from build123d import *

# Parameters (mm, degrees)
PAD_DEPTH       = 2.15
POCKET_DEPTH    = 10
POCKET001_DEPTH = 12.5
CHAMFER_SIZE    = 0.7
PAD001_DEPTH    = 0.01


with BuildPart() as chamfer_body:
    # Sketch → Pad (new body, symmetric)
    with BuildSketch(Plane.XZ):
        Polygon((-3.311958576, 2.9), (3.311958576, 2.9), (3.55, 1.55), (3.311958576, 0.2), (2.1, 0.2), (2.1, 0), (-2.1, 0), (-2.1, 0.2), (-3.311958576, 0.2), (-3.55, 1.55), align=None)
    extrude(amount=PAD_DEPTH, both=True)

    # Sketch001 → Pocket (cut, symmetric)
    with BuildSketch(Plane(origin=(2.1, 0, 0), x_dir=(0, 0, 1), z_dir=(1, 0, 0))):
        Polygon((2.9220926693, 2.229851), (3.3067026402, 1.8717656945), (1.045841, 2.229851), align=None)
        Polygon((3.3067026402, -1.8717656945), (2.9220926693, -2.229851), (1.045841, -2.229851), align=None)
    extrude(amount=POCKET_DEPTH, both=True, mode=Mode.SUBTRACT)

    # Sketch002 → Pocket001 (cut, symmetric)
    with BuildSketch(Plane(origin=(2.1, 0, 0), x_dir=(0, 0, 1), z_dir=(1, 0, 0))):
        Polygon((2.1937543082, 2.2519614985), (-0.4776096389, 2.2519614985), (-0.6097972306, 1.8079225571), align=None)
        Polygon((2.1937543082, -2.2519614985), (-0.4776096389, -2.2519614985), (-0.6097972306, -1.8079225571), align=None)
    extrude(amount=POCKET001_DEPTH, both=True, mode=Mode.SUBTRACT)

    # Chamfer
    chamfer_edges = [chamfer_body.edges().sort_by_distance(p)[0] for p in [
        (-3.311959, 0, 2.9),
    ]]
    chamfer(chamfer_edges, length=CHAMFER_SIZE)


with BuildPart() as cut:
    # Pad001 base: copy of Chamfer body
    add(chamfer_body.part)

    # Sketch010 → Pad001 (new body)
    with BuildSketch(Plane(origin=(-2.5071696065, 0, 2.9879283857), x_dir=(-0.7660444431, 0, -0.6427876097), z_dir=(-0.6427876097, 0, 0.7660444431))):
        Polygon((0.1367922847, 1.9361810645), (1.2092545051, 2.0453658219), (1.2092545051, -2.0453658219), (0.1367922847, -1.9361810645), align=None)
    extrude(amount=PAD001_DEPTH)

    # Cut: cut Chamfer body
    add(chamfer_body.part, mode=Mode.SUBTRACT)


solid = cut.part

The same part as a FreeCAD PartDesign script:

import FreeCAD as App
import Part
import Sketcher
from FreeCAD import Vector
Q = App.Units.Quantity


def edges_at(feature, points):
    """Names of the edges that pass closest to the given points."""
    edges = feature.Shape.Edges
    near = lambda p: min(range(len(edges)), key=lambda i: edges[i].distToShape(Part.Vertex(*p))[0])
    return sorted({f"Edge{near(p) + 1}" for p in points})


def add_polygon(sketch, points):
    """Adds a closed chain of lines whose ends are joined by coincident constraints."""
    first, n = sketch.GeometryCount, len(points)
    for a, b in zip(points, points[1:] + points[:1]):
        sketch.addGeometry(Part.LineSegment(App.Vector(*a, 0), App.Vector(*b, 0)), False)
    for i in range(n):
        sketch.addConstraint(Sketcher.Constraint("Coincident", first + i, 2, first + (i + 1) % n, 1))

doc = App.newDocument("Part")
body = doc.addObject("PartDesign::Body", "Body")

# Sketch on XZ plane
sketch1 = doc.addObject("Sketcher::SketchObject", "Sketch")
body.addObject(sketch1)
sketch1.AttachmentSupport = (doc.XZ_Plane, [""])
sketch1.MapMode = "FlatFace"
add_polygon(sketch1, [(3.311959, 2.9), (-3.311959, 2.9), (-3.55, 1.55), (-3.311959, 0.2), (-2.1, 0.2), (-2.1, 0), (2.1, 0), (2.1, 0.2), (3.311959, 0.2), (3.55, 1.55)])  # lines 0-9
sketch1.addConstraint(Sketcher.Constraint("Horizontal", 0))
sketch1.addConstraint(Sketcher.Constraint("Horizontal", 3))
sketch1.addConstraint(Sketcher.Constraint("Vertical", 4))
sketch1.addConstraint(Sketcher.Constraint("Horizontal", 5))
sketch1.addConstraint(Sketcher.Constraint("Vertical", 6))
sketch1.addConstraint(Sketcher.Constraint("Horizontal", 7))
sketch1.addConstraint(Sketcher.Constraint("Symmetric", 4, 2, 5, 2, -1, 1))
sketch1.addConstraint(Sketcher.Constraint("Symmetric", 2, 2, 7, 2, -2))
sketch1.addConstraint(Sketcher.Constraint("Symmetric", 1, 2, 8, 2, -2))
sketch1.addConstraint(Sketcher.Constraint("Parallel", 1, 8))
sketch1.addConstraint(Sketcher.Constraint("Parallel", 2, 9))
sketch1.addConstraint(Sketcher.Constraint("Vertical", 0, 2, 2, 2))
sketch1.addConstraint(Sketcher.Constraint("Angle", 1, Q("-100 deg")))
sketch1.addConstraint(Sketcher.Constraint("DistanceX", 5, 1, 5, 2, Q("4.2 mm")))
sketch1.addConstraint(Sketcher.Constraint("DistanceY", 4, 2, 4, 1, Q("0.2 mm")))
sketch1.addConstraint(Sketcher.Constraint("DistanceY", -1, 1, 0, 2, Q("2.9 mm")))
sketch1.addConstraint(Sketcher.Constraint("DistanceX", 1, 2, -1, 1, Q("3.55 mm")))
pad1 = doc.addObject("PartDesign::Pad", "Pad")
body.addObject(pad1)
pad1.Profile = sketch1
pad1.Length = 4.3
pad1.Midplane = True

# Sketch on YZ plane
sketch2 = doc.addObject("Sketcher::SketchObject", "Sketch001")
body.addObject(sketch2)
sketch2.AttachmentSupport = (doc.YZ_Plane, [""])
sketch2.MapMode = "FlatFace"
sketch2.AttachmentOffset = App.Placement(Vector(0, 0, 2.1), App.Rotation())
add_polygon(sketch2, [(-1.871766, 3.306703), (-2.229851, 2.922093), (-2.229851, 1.045841)])  # lines 0-2
add_polygon(sketch2, [(2.229851, 2.922093), (1.871766, 3.306703), (2.229851, 1.045841)])  # lines 3-5
sketch2.addConstraint(Sketcher.Constraint("Vertical", 1))
sketch2.addConstraint(Sketcher.Constraint("Vertical", 5))
sketch2.addConstraint(Sketcher.Constraint("Symmetric", 2, 2, 3, 2, -2))
sketch2.addConstraint(Sketcher.Constraint("Symmetric", 1, 2, 4, 2, -2))
sketch2.addConstraint(Sketcher.Constraint("Horizontal", 0, 2, 5, 2))
sketch2.addConstraint(Sketcher.Constraint("Angle", 2, Q("81 deg")))
sketch2.addConstraint(Sketcher.Constraint("Distance", 0, Q("0.5255 mm")))
sketch2.addConstraint(Sketcher.Constraint("DistanceY", 1, 2, 1, 1, Q("1.876252 mm")))
sketch2.addConstraint(Sketcher.Constraint("DistanceX", 0, 2, -1, 1, Q("2.229851 mm")))
sketch2.addConstraint(Sketcher.Constraint("DistanceY", -1, 1, 1, 2, Q("1.045841 mm")))
pocket1 = doc.addObject("PartDesign::Pocket", "Pocket")
body.addObject(pocket1)
pocket1.Profile = sketch2
pocket1.Length = 20
pocket1.Midplane = True

# Sketch on YZ plane
sketch3 = doc.addObject("Sketcher::SketchObject", "Sketch002")
body.addObject(sketch3)
sketch3.AttachmentSupport = (doc.YZ_Plane, [""])
sketch3.MapMode = "FlatFace"
sketch3.AttachmentOffset = App.Placement(Vector(0, 0, 2.1), App.Rotation())
add_polygon(sketch3, [(-2.251961, 2.193754), (-2.251961, -0.47761), (-1.807923, -0.609797)])  # lines 0-2
add_polygon(sketch3, [(2.251961, -0.47761), (2.251961, 2.193754), (1.807923, -0.609797)])  # lines 3-5
sketch3.addConstraint(Sketcher.Constraint("Vertical", 0))
sketch3.addConstraint(Sketcher.Constraint("Vertical", 3))
sketch3.addConstraint(Sketcher.Constraint("Symmetric", 2, 2, 3, 2, -2))
sketch3.addConstraint(Sketcher.Constraint("Symmetric", 1, 2, 4, 2, -2))
sketch3.addConstraint(Sketcher.Constraint("Horizontal", 0, 2, 5, 2))
sketch3.addConstraint(Sketcher.Constraint("Angle", 2, Q("99 deg")))
sketch3.addConstraint(Sketcher.Constraint("Distance", 2, Q("2.838498 mm")))
sketch3.addConstraint(Sketcher.Constraint("DistanceY", 0, 2, 0, 1, Q("2.671364 mm")))
sketch3.addConstraint(Sketcher.Constraint("DistanceX", 0, 2, -1, 1, Q("2.251961 mm")))
sketch3.addConstraint(Sketcher.Constraint("DistanceY", 0, 2, -1, 1, Q("0.47761 mm")))
pocket2 = doc.addObject("PartDesign::Pocket", "Pocket001")
body.addObject(pocket2)
pocket2.Profile = sketch3
pocket2.Length = 25
pocket2.Midplane = True
doc.recompute()

chamfer = doc.addObject("PartDesign::Chamfer", "Chamfer")
body.addObject(chamfer)
chamfer.Base = (pocket2, edges_at(pocket2, [(-3.312, 0, 2.9)]))
chamfer.Size = 0.7
body2 = doc.addObject("PartDesign::Body", "Body001")
doc.recompute()

body2.BaseFeature = body
doc.recompute()

# Sketch on an angled plane
sketch4 = doc.addObject("Sketcher::SketchObject", "Sketch003")
body2.addObject(sketch4)
sketch4.Placement = App.Placement(Vector(-2.50717, 0, 2.987928), App.Rotation(Vector(-0.766044443, 0, -0.64278761), Vector(0, -1, 0), Vector(-0.64278761, 0, 0.766044443), "ZXY"))
add_polygon(sketch4, [(1.209255, 2.045366), (0.136792, 1.936181), (0.136792, -1.936181), (1.209255, -2.045366)])  # lines 0-3
sketch4.addConstraint(Sketcher.Constraint("Vertical", 1))
sketch4.addConstraint(Sketcher.Constraint("Vertical", 3))
sketch4.addConstraint(Sketcher.Constraint("Equal", 0, 2))
sketch4.addConstraint(Sketcher.Constraint("DistanceY", 3, 1, 3, 2, Q("4.090732 mm")))
sketch4.addConstraint(Sketcher.Constraint("DistanceY", 1, 2, 1, 1, Q("3.872362 mm")))
sketch4.addConstraint(Sketcher.Constraint("DistanceY", -1, 1, 0, 2, Q("1.936181 mm")))
sketch4.addConstraint(Sketcher.Constraint("Distance", 0, Q("1.078006 mm")))
sketch4.addConstraint(Sketcher.Constraint("DistanceX", -1, 1, 0, 2, Q("0.136792 mm")))
pad2 = doc.addObject("PartDesign::Pad", "Pad001")
body2.addObject(pad2)
pad2.Profile = sketch4
pad2.Length = 0.01
doc.recompute()

boolean = doc.addObject("PartDesign::Boolean", "Boolean")
body2.addObject(boolean)
boolean.Type = "Cut"
boolean.addObjects([body])

doc.recompute()
